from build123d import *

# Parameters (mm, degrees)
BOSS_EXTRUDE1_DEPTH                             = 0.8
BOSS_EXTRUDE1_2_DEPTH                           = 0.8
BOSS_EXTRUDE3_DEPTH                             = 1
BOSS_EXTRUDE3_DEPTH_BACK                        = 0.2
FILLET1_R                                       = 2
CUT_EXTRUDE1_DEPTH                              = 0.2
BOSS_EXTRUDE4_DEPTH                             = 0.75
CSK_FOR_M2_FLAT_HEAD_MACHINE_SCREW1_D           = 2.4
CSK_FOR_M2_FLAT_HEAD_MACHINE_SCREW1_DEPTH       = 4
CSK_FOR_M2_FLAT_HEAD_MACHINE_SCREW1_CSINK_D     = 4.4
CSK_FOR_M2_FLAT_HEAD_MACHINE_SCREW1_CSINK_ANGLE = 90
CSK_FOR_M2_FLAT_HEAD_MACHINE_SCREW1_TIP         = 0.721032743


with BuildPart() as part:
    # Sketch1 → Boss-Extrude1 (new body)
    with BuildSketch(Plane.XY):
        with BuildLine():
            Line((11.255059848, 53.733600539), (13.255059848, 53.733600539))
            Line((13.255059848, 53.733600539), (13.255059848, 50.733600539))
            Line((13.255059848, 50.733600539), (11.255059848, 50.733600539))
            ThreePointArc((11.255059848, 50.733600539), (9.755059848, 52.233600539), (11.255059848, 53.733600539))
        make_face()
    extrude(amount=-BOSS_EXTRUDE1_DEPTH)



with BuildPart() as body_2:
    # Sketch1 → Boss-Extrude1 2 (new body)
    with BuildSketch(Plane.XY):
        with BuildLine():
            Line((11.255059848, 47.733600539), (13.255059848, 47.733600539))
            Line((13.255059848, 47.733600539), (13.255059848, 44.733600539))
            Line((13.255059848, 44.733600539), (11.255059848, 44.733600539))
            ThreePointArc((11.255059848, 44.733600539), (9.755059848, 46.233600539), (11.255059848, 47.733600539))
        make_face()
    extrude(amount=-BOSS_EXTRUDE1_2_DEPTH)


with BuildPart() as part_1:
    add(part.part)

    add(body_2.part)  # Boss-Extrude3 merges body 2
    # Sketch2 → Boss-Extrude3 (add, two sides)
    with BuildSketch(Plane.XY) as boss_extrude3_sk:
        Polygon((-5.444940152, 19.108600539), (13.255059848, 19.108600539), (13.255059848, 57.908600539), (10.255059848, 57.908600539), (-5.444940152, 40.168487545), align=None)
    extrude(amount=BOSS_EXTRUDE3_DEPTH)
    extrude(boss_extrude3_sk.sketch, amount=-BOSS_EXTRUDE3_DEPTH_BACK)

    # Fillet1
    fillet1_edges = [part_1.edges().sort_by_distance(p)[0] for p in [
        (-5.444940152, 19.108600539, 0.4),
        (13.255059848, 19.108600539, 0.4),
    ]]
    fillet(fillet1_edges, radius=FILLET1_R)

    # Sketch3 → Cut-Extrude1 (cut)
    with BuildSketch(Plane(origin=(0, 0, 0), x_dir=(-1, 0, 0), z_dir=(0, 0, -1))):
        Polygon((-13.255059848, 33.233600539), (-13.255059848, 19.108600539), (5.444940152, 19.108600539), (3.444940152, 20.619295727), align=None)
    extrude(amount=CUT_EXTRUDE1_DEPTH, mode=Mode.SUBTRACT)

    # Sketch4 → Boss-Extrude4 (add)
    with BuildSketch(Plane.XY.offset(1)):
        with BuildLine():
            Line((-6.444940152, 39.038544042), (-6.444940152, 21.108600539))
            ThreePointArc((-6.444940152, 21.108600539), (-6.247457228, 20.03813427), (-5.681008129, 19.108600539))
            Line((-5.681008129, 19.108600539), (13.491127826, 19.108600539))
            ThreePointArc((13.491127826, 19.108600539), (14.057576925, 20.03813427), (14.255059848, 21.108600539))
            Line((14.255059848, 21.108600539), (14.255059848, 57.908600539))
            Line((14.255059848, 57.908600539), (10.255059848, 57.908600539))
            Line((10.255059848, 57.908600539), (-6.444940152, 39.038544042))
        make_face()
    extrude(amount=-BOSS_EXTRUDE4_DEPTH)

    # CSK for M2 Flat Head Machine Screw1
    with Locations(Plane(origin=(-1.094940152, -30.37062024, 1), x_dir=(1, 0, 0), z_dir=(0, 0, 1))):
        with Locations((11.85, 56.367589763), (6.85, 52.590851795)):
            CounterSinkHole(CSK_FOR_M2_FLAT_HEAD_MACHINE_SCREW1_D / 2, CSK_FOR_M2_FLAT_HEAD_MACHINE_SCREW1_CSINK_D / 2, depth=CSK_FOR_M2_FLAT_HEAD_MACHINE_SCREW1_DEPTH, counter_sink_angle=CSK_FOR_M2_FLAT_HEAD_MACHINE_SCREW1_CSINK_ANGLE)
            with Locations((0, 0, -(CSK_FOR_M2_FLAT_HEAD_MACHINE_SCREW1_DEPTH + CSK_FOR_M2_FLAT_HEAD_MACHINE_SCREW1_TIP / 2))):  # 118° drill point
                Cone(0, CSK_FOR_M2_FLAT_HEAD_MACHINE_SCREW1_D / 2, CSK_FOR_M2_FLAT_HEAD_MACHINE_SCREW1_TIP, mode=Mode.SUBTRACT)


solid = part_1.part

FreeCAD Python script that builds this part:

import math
import FreeCAD as App
import Part
import Sketcher

V = App.Vector


def edges_at(feature, points):
    """Names of the edges that pass closest to the given points."""
    edges = feature.Shape.Edges
    near = lambda p: min(range(len(edges)), key=lambda i: edges[i].distToShape(Part.Vertex(*p))[0])
    return sorted({f"Edge{near(p) + 1}" for p in points})


def add_polygon(sketch, points):
    """Adds a closed chain of lines whose ends are joined by coincident constraints."""
    first, n = sketch.GeometryCount, len(points)
    for a, b in zip(points, points[1:] + points[:1]):
        sketch.addGeometry(Part.LineSegment(App.Vector(*a, 0), App.Vector(*b, 0)), False)
    for i in range(n):
        sketch.addConstraint(Sketcher.Constraint("Coincident", first + i, 2, first + (i + 1) % n, 1))

doc = App.newDocument("Part")
body = doc.addObject("PartDesign::Body", "Body")

sketch1 = body.newObject("Sketcher::SketchObject", "Sketch")
sketch1.AttachmentSupport = (doc.getObject("XY_Plane"), [""])
sketch1.MapMode = "FlatFace"
sketch1.addGeometry([
    Part.LineSegment(V(13.25506, 53.733601, 0), V(11.25506, 53.733601, 0)),
    Part.ArcOfCircle(Part.Circle(V(11.25506, 52.233601, 0), V(0, 0, 1), 1.5), math.radians(90), math.radians(270)),
    Part.LineSegment(V(11.25506, 50.733601, 0), V(13.25506, 50.733601, 0)),
    Part.LineSegment(V(13.25506, 50.733601, 0), V(13.25506, 53.733601, 0)),
], False)
sketch1.addConstraint([
    Sketcher.Constraint("Tangent", 0, 2, 1, 1),
    Sketcher.Constraint("Tangent", 1, 2, 2, 1),
    Sketcher.Constraint("Coincident", 2, 2, 3, 1),
    Sketcher.Constraint("Coincident", 3, 2, 0, 1),
    Sketcher.Constraint("Horizontal", 0),
    Sketcher.Constraint("Horizontal", 2),
    Sketcher.Constraint("Vertical", 3),
    Sketcher.Constraint("Radius", 1, 1.5),
    Sketcher.Constraint("DistanceX", 0, 2, 0, 1, 2.0),
    Sketcher.Constraint("DistanceY", -1, 1, 1, 3, 52.233601),
    Sketcher.Constraint("DistanceX", -1, 1, 1, 3, 11.25506),
])
pad1 = body.newObject("PartDesign::Pad", "Pad")
pad1.Profile = sketch1
pad1.Length = 0.8
pad1.Reversed = True
body2 = doc.addObject("PartDesign::Body", "Body001")

sketch2 = body2.newObject("Sketcher::SketchObject", "Sketch001")
sketch2.AttachmentSupport = (doc.getObject("XY_Plane001"), [""])
sketch2.MapMode = "FlatFace"
sketch2.addGeometry([
    Part.LineSegment(V(13.25506, 47.733601, 0), V(11.25506, 47.733601, 0)),
    Part.ArcOfCircle(Part.Circle(V(11.25506, 46.233601, 0), V(0, 0, 1), 1.5), math.radians(90), math.radians(270)),
    Part.LineSegment(V(11.25506, 44.733601, 0), V(13.25506, 44.733601, 0)),
    Part.LineSegment(V(13.25506, 44.733601, 0), V(13.25506, 47.733601, 0)),
], False)
sketch2.addConstraint([
    Sketcher.Constraint("Tangent", 0, 2, 1, 1),
    Sketcher.Constraint("Tangent", 1, 2, 2, 1),
    Sketcher.Constraint("Coincident", 2, 2, 3, 1),
    Sketcher.Constraint("Coincident", 3, 2, 0, 1),
    Sketcher.Constraint("Horizontal", 0),
    Sketcher.Constraint("Horizontal", 2),
    Sketcher.Constraint("Vertical", 3),
    Sketcher.Constraint("Radius", 1, 1.5),
    Sketcher.Constraint("DistanceX", 0, 2, 0, 1, 2.0),
    Sketcher.Constraint("DistanceY", -1, 1, 1, 3, 46.233601),
    Sketcher.Constraint("DistanceX", -1, 1, 1, 3, 11.25506),
])
pad2 = body2.newObject("PartDesign::Pad", "Pad001")
pad2.Profile = sketch2
pad2.Length = 0.8
pad2.Reversed = True
body.AllowCompound = True
doc.recompute()

boolean = body.newObject("PartDesign::Boolean", "Boolean")
boolean.Type = "Fuse"
boolean.addObjects([body2])

sketch3 = body.newObject("Sketcher::SketchObject", "Sketch002")
sketch3.AttachmentSupport = (doc.getObject("XY_Plane"), [""])
sketch3.MapMode = "FlatFace"
add_polygon(sketch3, [(-5.44494, 19.108601), (13.25506, 19.108601), (13.25506, 57.908601), (10.25506, 57.908601), (-5.44494, 40.168488)])
sketch3.addConstraint([
    Sketcher.Constraint("Horizontal", 0),
    Sketcher.Constraint("Vertical", 1),
    Sketcher.Constraint("Horizontal", 2),
    Sketcher.Constraint("Vertical", 4),
    Sketcher.Constraint("DistanceX", 2, 2, 2, 1, 3.0),
    Sketcher.Constraint("DistanceX", 0, 1, 0, 2, 18.7),
    Sketcher.Constraint("DistanceY", 1, 1, 1, 2, 38.8),
    Sketcher.Constraint("DistanceY", -1, 1, 0, 2, 19.108601),
    Sketcher.Constraint("DistanceY", 4, 2, 4, 1, 21.059887),
    Sketcher.Constraint("DistanceX", -1, 1, 0, 2, 13.25506),
])
pad3 = body.newObject("PartDesign::Pad", "Pad002")
pad3.Profile = sketch3
pad3.Type = "TwoLengths"
pad3.Length = 1
pad3.Length2 = 0.2
doc.recompute()

fillet = body.newObject("PartDesign::Fillet", "Fillet")
fillet.Base = (pad3, edges_at(pad3, [(-5.445, 19.109, 0.4), (13.255, 19.109, 0.4)]))
fillet.Radius = 2

sketch4 = body.newObject("Sketcher::SketchObject", "Sketch003")
sketch4.AttachmentSupport = (doc.getObject("XY_Plane"), [""])
sketch4.MapMode = "FlatFace"
add_polygon(sketch4, [(13.25506, 33.233601), (13.25506, 19.108601), (-5.44494, 19.108601), (-3.44494, 20.619296)])
sketch4.addConstraint([
    Sketcher.Constraint("Vertical", 0),
    Sketcher.Constraint("Horizontal", 1),
    Sketcher.Constraint("Parallel", 2, 3),
    Sketcher.Constraint("DistanceX", 1, 2, 1, 1, 18.7),
    Sketcher.Constraint("DistanceX", 1, 2, 2, 2, 2.0),
    Sketcher.Constraint("DistanceY", 0, 2, 0, 1, 14.125),
    Sketcher.Constraint("DistanceY", -1, 1, 0, 2, 19.108601),
    Sketcher.Constraint("DistanceX", -1, 1, 0, 2, 13.25506),
])
pocket1 = body.newObject("PartDesign::Pocket", "Pocket")
pocket1.Profile = sketch4
pocket1.Length = 0.2

sketch5 = body.newObject("Sketcher::SketchObject", "Sketch004")
sketch5.AttachmentSupport = (doc.getObject("XY_Plane"), [""])
sketch5.MapMode = "FlatFace"
sketch5.AttachmentOffset = App.Placement(V(0, 0, 1), App.Rotation())
sketch5.addGeometry([
    Part.LineSegment(V(-6.44494, 39.038544, 0), V(-6.44494, 21.108601, 0)),
    Part.ArcOfCircle(Part.Circle(V(-3.44494, 21.108601, 0), V(0, 0, 1), 3), math.radians(-180), math.radians(-138.189685)),
    Part.LineSegment(V(-5.681008, 19.108601, 0), V(13.491128, 19.108601, 0)),
    Part.ArcOfCircle(Part.Circle(V(11.25506, 21.108601, 0), V(0, 0, 1), 3), math.radians(-41.810315), math.radians(0)),
    Part.LineSegment(V(14.25506, 21.108601, 0), V(14.25506, 57.908601, 0)),
    Part.LineSegment(V(14.25506, 57.908601, 0), V(10.25506, 57.908601, 0)),
    Part.LineSegment(V(10.25506, 57.908601, 0), V(-6.44494, 39.038544, 0)),
], False)
sketch5.addConstraint([
    Sketcher.Constraint("Tangent", 0, 2, 1, 1),
    Sketcher.Constraint("Coincident", 1, 2, 2, 1),
    Sketcher.Constraint("Coincident", 2, 2, 3, 1),
    Sketcher.Constraint("Tangent", 3, 2, 4, 1),
    Sketcher.Constraint("Coincident", 4, 2, 5, 1),
    Sketcher.Constraint("Coincident", 5, 2, 6, 1),
    Sketcher.Constraint("Coincident", 6, 2, 0, 1),
    Sketcher.Constraint("Vertical", 0),
    Sketcher.Constraint("Horizontal", 2),
    Sketcher.Constraint("Vertical", 4),
    Sketcher.Constraint("Horizontal", 5),
    Sketcher.Constraint("Equal", 1, 3),
    Sketcher.Constraint("Horizontal", 1, 3, 3, 3),
    Sketcher.Constraint("Radius", 1, 3.0),
    Sketcher.Constraint("DistanceX", 5, 2, 5, 1, 4.0),
    Sketcher.Constraint("DistanceY", 4, 1, 4, 2, 36.8),
    Sketcher.Constraint("DistanceY", 1, 2, 0, 2, 2.0),
    Sketcher.Constraint("DistanceX", 1, 3, 3, 3, 14.7),
    Sketcher.Constraint("DistanceY", -1, 1, 1, 3, 21.108601),
    Sketcher.Constraint("Distance", 6, 25.198592),
    Sketcher.Constraint("DistanceX", 1, 3, -1, 1, 3.44494),
])
pad4 = body.newObject("PartDesign::Pad", "Pad003")
pad4.Profile = sketch5
pad4.Length = 0.75
pad4.Reversed = True

sketch6 = body.newObject("Sketcher::SketchObject", "Sketch005")
sketch6.AttachmentSupport = (doc.getObject("XY_Plane"), [""])
sketch6.MapMode = "FlatFace"
sketch6.AttachmentOffset = App.Placement(V(0, 0, 1), App.Rotation())
sketch6.addGeometry([
    Part.Circle(V(10.75506, 25.99697, 0), V(0, 0, 1), 1.2),
    Part.Circle(V(5.75506, 22.220232, 0), V(0, 0, 1), 1.2),
], False)
sketch6.addConstraint([
    Sketcher.Constraint("Equal", 0, 1),
    Sketcher.Constraint("Diameter", 0, 2.4),
    Sketcher.Constraint("DistanceX", 1, 3, 0, 3, 5.0),
    Sketcher.Constraint("DistanceX", -1, 1, 0, 3, 10.75506),
    Sketcher.Constraint("DistanceY", -1, 1, 0, 3, 25.99697),
    Sketcher.Constraint("DistanceY", -1, 1, 1, 3, 22.220232),
])
doc.recompute()
hole = body.newObject("PartDesign::Hole", "Hole")
hole.Profile = sketch6
hole.ThreadType = "None"
hole.Diameter = 2.4
hole.DepthType = "Dimension"
hole.Depth = 4
hole.DrillPoint = "Angled"
hole.DrillPointAngle = 118
hole.HoleCutType = "Countersink"
hole.HoleCutDiameter = 4.4
hole.HoleCutCountersinkAngle = 90

doc.recompute()
